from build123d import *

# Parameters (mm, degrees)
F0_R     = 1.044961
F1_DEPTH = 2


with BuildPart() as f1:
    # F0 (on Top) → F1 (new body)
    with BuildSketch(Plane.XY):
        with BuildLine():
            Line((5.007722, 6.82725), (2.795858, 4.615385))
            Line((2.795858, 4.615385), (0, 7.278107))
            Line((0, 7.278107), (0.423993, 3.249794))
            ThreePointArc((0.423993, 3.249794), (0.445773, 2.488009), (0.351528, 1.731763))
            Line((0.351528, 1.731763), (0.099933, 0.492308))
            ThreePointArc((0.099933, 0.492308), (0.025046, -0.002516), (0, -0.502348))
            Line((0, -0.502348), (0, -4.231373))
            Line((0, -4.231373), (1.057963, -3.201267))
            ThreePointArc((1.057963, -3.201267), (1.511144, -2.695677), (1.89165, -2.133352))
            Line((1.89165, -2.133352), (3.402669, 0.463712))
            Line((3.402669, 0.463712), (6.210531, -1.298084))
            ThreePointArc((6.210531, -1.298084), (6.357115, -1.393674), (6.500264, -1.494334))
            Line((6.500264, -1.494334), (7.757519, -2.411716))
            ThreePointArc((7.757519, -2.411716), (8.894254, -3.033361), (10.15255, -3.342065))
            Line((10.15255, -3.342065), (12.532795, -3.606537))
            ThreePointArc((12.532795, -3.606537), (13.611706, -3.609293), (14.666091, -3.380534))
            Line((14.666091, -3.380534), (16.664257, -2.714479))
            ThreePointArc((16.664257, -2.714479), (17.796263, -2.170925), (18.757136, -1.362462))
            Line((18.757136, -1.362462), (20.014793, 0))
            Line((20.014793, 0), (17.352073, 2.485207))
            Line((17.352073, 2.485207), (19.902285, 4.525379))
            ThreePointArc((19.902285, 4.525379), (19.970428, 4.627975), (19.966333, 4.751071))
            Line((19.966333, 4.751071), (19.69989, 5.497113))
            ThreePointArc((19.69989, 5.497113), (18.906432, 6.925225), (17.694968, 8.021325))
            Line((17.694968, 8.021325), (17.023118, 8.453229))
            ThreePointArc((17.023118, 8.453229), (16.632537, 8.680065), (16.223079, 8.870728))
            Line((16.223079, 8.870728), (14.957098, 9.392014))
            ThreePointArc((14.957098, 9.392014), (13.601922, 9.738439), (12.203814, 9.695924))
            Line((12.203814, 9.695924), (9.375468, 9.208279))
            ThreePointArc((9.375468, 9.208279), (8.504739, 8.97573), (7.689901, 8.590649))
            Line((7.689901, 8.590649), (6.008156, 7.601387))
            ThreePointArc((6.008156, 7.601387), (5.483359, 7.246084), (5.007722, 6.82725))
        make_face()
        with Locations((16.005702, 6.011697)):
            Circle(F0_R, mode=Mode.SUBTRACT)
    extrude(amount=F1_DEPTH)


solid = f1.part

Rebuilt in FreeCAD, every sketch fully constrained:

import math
import FreeCAD as App
import Part
import Sketcher
from FreeCAD import Vector

doc = App.newDocument("Part")
params = doc.addObject("Spreadsheet::Sheet", "Params")
for row, (alias, value) in enumerate([
    ("pad1_length", "2 mm"),
], start=1):
    params.set(f"A{row}", alias)
    params.set(f"B{row}", "=" + value)
    params.setAlias(f"B{row}", alias)

body = doc.addObject("PartDesign::Body", "Body")

# Sketch on XY plane
sketch1 = body.newObject("Sketcher::SketchObject", "Sketch")
sketch1.AttachmentSupport = (doc.getObject("XY_Plane"), [""])
sketch1.MapMode = "FlatFace"
sketch1.addGeometry([
    Part.LineSegment(Vector(5.007722, 6.82725, 0), Vector(2.795858, 4.615385, 0)),  # 0
    Part.LineSegment(Vector(2.795858, 4.615385, 0), Vector(0, 7.278107, 0)),  # 1
    Part.LineSegment(Vector(0, 7.278107, 0), Vector(0.423993, 3.249794, 0)),  # 2
    Part.ArcOfCircle(Part.Circle(Vector(-4.548581, 2.726421, 0), Vector(0, 0, 1), 5.000041), math.radians(-11.474389), math.radians(6.008375)),  # 3
    Part.LineSegment(Vector(0.351528, 1.731763, 0), Vector(0.099933, 0.492308, 0)),  # 4
    Part.ArcOfCircle(Part.Circle(Vector(4.999985, -0.502348, 0), Vector(0, 0, 1), 4.999985), math.radians(168.525501), math.radians(180.000001)),  # 5
    Part.LineSegment(Vector(0, -0.502348, 0), Vector(0, -4.231373, 0)),  # 6
    Part.LineSegment(Vector(0, -4.231373, 0), Vector(1.057963, -3.201267, 0)),  # 7
    Part.ArcOfCircle(Part.Circle(Vector(-2.430116, 0.381139, 0), Vector(0, 0, 1), 5.000033), math.radians(-45.764328), math.radians(-30.191706)),  # 8
    Part.LineSegment(Vector(1.89165, -2.133352, 0), Vector(3.402669, 0.463712, 0)),  # 9
    Part.LineSegment(Vector(3.402669, 0.463712, 0), Vector(6.210531, -1.298084, 0)),  # 10
    Part.ArcOfCircle(Part.Circle(Vector(3.552721, -5.533931, 0), Vector(0, 0, 1), 5.000635), math.radians(53.883165), math.radians(57.893512)),  # 11
    Part.LineSegment(Vector(6.500264, -1.494334, 0), Vector(7.757519, -2.411716, 0)),  # 12
    Part.ArcOfCircle(Part.Circle(Vector(10.704705, 1.62735, 0), Vector(0, 0, 1), 4.999997), math.radians(-126.117115), math.radians(-96.34017)),  # 13
    Part.LineSegment(Vector(10.15255, -3.342065, 0), Vector(12.532795, -3.606537, 0)),  # 14
    Part.ArcOfCircle(Part.Circle(Vector(13.084948, 1.362904, 0), Vector(0, 0, 1), 5.000022), math.radians(-96.340112), math.radians(-71.565085)),  # 15
    Part.LineSegment(Vector(14.666091, -3.380534, 0), Vector(16.664257, -2.714479, 0)),  # 16
    Part.ArcOfCircle(Part.Circle(Vector(15.08312, 2.028934, 0), Vector(0, 0, 1), 4.999997), math.radians(-71.565055), math.radians(-42.709362)),  # 17
    Part.LineSegment(Vector(18.757136, -1.362462, 0), Vector(20.014793, 0, 0)),  # 18
    Part.LineSegment(Vector(20.014793, 0, 0), Vector(17.352073, 2.485207, 0)),  # 19
    Part.LineSegment(Vector(17.352073, 2.485207, 0), Vector(19.902285, 4.525379, 0)),  # 20
    Part.ArcOfCircle(Part.Circle(Vector(19.776087, 4.683126, 0), Vector(0, 0, 1), 0.202015), math.radians(-51.340108), math.radians(19.653817)),  # 21
    Part.LineSegment(Vector(19.966333, 4.751071, 0), Vector(19.69989, 5.497113, 0)),  # 22
    Part.ArcOfCircle(Part.Circle(Vector(14.991191, 3.815441, 0), Vector(0, 0, 1), 4.999987), math.radians(19.653752), math.radians(57.264822)),  # 23
    Part.LineSegment(Vector(17.694968, 8.021325, 0), Vector(17.023118, 8.453229, 0)),  # 24
    Part.ArcOfCircle(Part.Circle(Vector(14.319364, 4.247411, 0), Vector(0, 0, 1), 4.999919), math.radians(57.264639), math.radians(67.619904)),  # 25
    Part.LineSegment(Vector(16.223079, 8.870728, 0), Vector(14.957098, 9.392014, 0)),  # 26
    Part.ArcOfCircle(Part.Circle(Vector(13.053349, 4.76862, 0), Vector(0, 0, 1), 5.000004), math.radians(67.619878), math.radians(99.7824)),  # 27
    Part.LineSegment(Vector(12.203814, 9.695924, 0), Vector(9.375468, 9.208279, 0)),  # 28
    Part.ArcOfCircle(Part.Circle(Vector(10.225005, 4.280972, 0), Vector(0, 0, 1), 5.000007), math.radians(99.782419), math.radians(120.465542)),  # 29
    Part.LineSegment(Vector(7.689901, 8.590649, 0), Vector(6.008156, 7.601387, 0)),  # 30
    Part.ArcOfCircle(Part.Circle(Vector(8.543276, 3.291687, 0), Vector(0, 0, 1), 5.000035), math.radians(120.465566), math.radians(134.999926)),  # 31
    Part.Circle(Vector(16.005702, 6.011697, 0), Vector(0, 0, 1), 1.044961),  # 32
], False)
sketch1.addConstraint([
    Sketcher.Constraint("Coincident", 0, 2, 1, 1),
    Sketcher.Constraint("Coincident", 1, 2, 2, 1),
    Sketcher.Constraint("Coincident", 2, 2, 3, 2),
    Sketcher.Constraint("Coincident", 3, 1, 4, 1),
    Sketcher.Constraint("Coincident", 4, 2, 5, 1),
    Sketcher.Constraint("Coincident", 5, 2, 6, 1),
    Sketcher.Constraint("Coincident", 6, 2, 7, 1),
    Sketcher.Constraint("Coincident", 7, 2, 8, 1),
    Sketcher.Constraint("Coincident", 8, 2, 9, 1),
    Sketcher.Constraint("Coincident", 9, 2, 10, 1),
    Sketcher.Constraint("Coincident", 10, 2, 11, 2),
    Sketcher.Constraint("Coincident", 11, 1, 12, 1),
    Sketcher.Constraint("Coincident", 12, 2, 13, 1),
    Sketcher.Constraint("Coincident", 13, 2, 14, 1),
    Sketcher.Constraint("Coincident", 14, 2, 15, 1),
    Sketcher.Constraint("Coincident", 15, 2, 16, 1),
    Sketcher.Constraint("Coincident", 16, 2, 17, 1),
    Sketcher.Constraint("Coincident", 17, 2, 18, 1),
    Sketcher.Constraint("Coincident", 18, 2, 19, 1),
    Sketcher.Constraint("Coincident", 19, 2, 20, 1),
    Sketcher.Constraint("Coincident", 20, 2, 21, 1),
    Sketcher.Constraint("Coincident", 21, 2, 22, 1),
    Sketcher.Constraint("Coincident", 22, 2, 23, 1),
    Sketcher.Constraint("Coincident", 23, 2, 24, 1),
    Sketcher.Constraint("Coincident", 24, 2, 25, 1),
    Sketcher.Constraint("Coincident", 25, 2, 26, 1),
    Sketcher.Constraint("Coincident", 26, 2, 27, 1),
    Sketcher.Constraint("Coincident", 27, 2, 28, 1),
    Sketcher.Constraint("Coincident", 28, 2, 29, 1),
    Sketcher.Constraint("Coincident", 29, 2, 30, 1),
    Sketcher.Constraint("Coincident", 30, 2, 31, 1),
    Sketcher.Constraint("Coincident", 31, 2, 0, 1),
    Sketcher.Constraint("Vertical", 6),
    Sketcher.Constraint("PointOnObject", 1, 2, -2),
    Sketcher.Constraint("PointOnObject", 5, 2, -2),
    Sketcher.Constraint("PointOnObject", 18, 2, -1),
    Sketcher.Constraint("Diameter", 32, 2.089922),
    Sketcher.Constraint("Radius", 3, 5.000041),
    Sketcher.Constraint("Radius", 15, 5.000022),
    Sketcher.Constraint("Radius", 25, 4.999919),
    Sketcher.Constraint("Radius", 5, 4.999985),
    Sketcher.Constraint("Radius", 8, 5.000033),
    Sketcher.Constraint("Radius", 11, 5.000635),
    Sketcher.Constraint("Radius", 13, 4.999997),
    Sketcher.Constraint("Radius", 17, 4.999997),
    Sketcher.Constraint("Radius", 21, 0.202015),
    Sketcher.Constraint("Radius", 23, 4.999987),
    Sketcher.Constraint("Radius", 27, 5.000004),
    Sketcher.Constraint("Radius", 29, 5.000007),
    Sketcher.Constraint("Radius", 31, 5.000035),
    Sketcher.Constraint("DistanceY", 0, 2, 30, 2, 2.986002),
    Sketcher.Constraint("Distance", 24, 0.798701),
    Sketcher.Constraint("DistanceX", -1, 1, 32, 3, 16.005702),
    Sketcher.Constraint("DistanceX", -1, 1, 29, 2, 7.689901),
    Sketcher.Constraint("DistanceX", 8, 3, 5, 3, 7.430101),
    Sketcher.Constraint("DistanceX", 3, 3, 11, 3, 8.101302),
    Sketcher.Constraint("DistanceY", 5, 3, 13, 3, 2.129698),
    Sketcher.Constraint("DistanceX", 11, 3, 17, 3, 11.530399),
    Sketcher.Constraint("DistanceX", 27, 3, 15, 3, 0.0316),
    Sketcher.Constraint("DistanceX", 29, 3, 13, 3, 0.479701),
    Sketcher.Constraint("DistanceX", 13, 2, 15, 3, 2.932398),
    Sketcher.Constraint("DistanceY", 21, 3, 23, 2, 3.338199),
    Sketcher.Constraint("DistanceY", 24, 2, 25, 2, 0.417499),
    Sketcher.Constraint("DistanceY", 31, 3, 30, 2, 4.3097),
    Sketcher.Constraint("DistanceY", 31, 2, 29, 2, 1.763399),
    Sketcher.Constraint("Distance", 0, 3.128049),
    Sketcher.Constraint("Distance", 7, 1.476619),
    Sketcher.Constraint("Distance", 9, 3.00465),
    Sketcher.Constraint("Distance", 16, 2.106252),
    Sketcher.Constraint("Distance", 30, 1.951129),
    Sketcher.Constraint("DistanceY", 6, 2, 6, 1, 3.729025),
    Sketcher.Constraint("DistanceX", 3, 3, -1, 1, 4.548581),
    Sketcher.Constraint("DistanceY", -1, 1, 3, 3, 2.726421),
    Sketcher.Constraint("DistanceY", -1, 1, 8, 3, 0.381139),
    Sketcher.Constraint("DistanceY", 11, 3, -1, 1, 5.533931),
    Sketcher.Constraint("DistanceY", -1, 1, 13, 3, 1.62735),
    Sketcher.Constraint("DistanceX", -1, 1, 15, 3, 13.084948),
    Sketcher.Constraint("DistanceX", -1, 1, 23, 3, 14.991191),
    Sketcher.Constraint("DistanceY", -1, 1, 23, 3, 3.815441),
    Sketcher.Constraint("DistanceY", -1, 1, 25, 3, 4.247411),
    Sketcher.Constraint("DistanceY", -1, 1, 27, 3, 4.76862),
    Sketcher.Constraint("DistanceX", -1, 1, 0, 2, 2.795858),
    Sketcher.Constraint("DistanceX", -1, 1, 3, 1, 0.351528),
    Sketcher.Constraint("DistanceY", 5, 2, -1, 1, 0.502348),
    Sketcher.Constraint("DistanceX", -1, 1, 8, 2, 1.89165),
    Sketcher.Constraint("DistanceX", -1, 1, 9, 2, 3.402669),
    Sketcher.Constraint("DistanceX", -1, 1, 10, 2, 6.210531),
    Sketcher.Constraint("DistanceX", -1, 1, 12, 2, 7.757519),
    Sketcher.Constraint("DistanceX", -1, 1, 15, 2, 14.666091),
    Sketcher.Constraint("DistanceY", 16, 2, -1, 1, 2.714479),
    Sketcher.Constraint("DistanceY", 17, 2, -1, 1, 1.362462),
    Sketcher.Constraint("DistanceY", -1, 1, 20, 2, 4.525379),
    Sketcher.Constraint("DistanceY", -1, 1, 21, 2, 4.751071),
    Sketcher.Constraint("DistanceX", -1, 1, 22, 2, 19.69989),
    Sketcher.Constraint("DistanceX", -1, 1, 24, 2, 17.023118),
    Sketcher.Constraint("DistanceY", -1, 1, 24, 2, 8.453229),
    Sketcher.Constraint("DistanceY", -1, 1, 28, 2, 9.208279),
    Sketcher.Constraint("DistanceY", -1, 1, 29, 2, 8.590649),
    Sketcher.Constraint("DistanceX", 5, 3, 13, 3, 5.70472),
    Sketcher.Constraint("DistanceY", 15, 3, 17, 3, 0.66603),
    Sketcher.Constraint("DistanceX", 15, 3, 21, 3, 6.691139),
    Sketcher.Constraint("DistanceY", 21, 3, 32, 3, 1.328571),
    Sketcher.Constraint("DistanceY", 8, 3, 1, 2, 6.896968),
    Sketcher.Constraint("DistanceY", 2, 2, 0, 2, 1.365591),
    Sketcher.Constraint("DistanceX", 8, 3, 4, 2, 2.530049),
    Sketcher.Constraint("DistanceY", 11, 1, 10, 2, 0.19625),
    Sketcher.Constraint("DistanceY", 14, 2, 13, 2, 0.264472),
    Sketcher.Constraint("DistanceY", 19, 2, 21, 3, 2.197919),
    Sketcher.Constraint("DistanceX", 25, 3, 19, 2, 3.032709),
    Sketcher.Constraint("DistanceX", 19, 2, 18, 2, 2.66272),
    Sketcher.Constraint("DistanceX", 26, 2, 25, 2, 1.265981),
    Sketcher.Constraint("DistanceY", 26, 2, 27, 2, 0.30391),
])
pad1 = body.newObject("PartDesign::Pad", "Pad")
pad1.Profile = sketch1
pad1.setExpression("Length", "Params.pad1_length")

doc.recompute()
